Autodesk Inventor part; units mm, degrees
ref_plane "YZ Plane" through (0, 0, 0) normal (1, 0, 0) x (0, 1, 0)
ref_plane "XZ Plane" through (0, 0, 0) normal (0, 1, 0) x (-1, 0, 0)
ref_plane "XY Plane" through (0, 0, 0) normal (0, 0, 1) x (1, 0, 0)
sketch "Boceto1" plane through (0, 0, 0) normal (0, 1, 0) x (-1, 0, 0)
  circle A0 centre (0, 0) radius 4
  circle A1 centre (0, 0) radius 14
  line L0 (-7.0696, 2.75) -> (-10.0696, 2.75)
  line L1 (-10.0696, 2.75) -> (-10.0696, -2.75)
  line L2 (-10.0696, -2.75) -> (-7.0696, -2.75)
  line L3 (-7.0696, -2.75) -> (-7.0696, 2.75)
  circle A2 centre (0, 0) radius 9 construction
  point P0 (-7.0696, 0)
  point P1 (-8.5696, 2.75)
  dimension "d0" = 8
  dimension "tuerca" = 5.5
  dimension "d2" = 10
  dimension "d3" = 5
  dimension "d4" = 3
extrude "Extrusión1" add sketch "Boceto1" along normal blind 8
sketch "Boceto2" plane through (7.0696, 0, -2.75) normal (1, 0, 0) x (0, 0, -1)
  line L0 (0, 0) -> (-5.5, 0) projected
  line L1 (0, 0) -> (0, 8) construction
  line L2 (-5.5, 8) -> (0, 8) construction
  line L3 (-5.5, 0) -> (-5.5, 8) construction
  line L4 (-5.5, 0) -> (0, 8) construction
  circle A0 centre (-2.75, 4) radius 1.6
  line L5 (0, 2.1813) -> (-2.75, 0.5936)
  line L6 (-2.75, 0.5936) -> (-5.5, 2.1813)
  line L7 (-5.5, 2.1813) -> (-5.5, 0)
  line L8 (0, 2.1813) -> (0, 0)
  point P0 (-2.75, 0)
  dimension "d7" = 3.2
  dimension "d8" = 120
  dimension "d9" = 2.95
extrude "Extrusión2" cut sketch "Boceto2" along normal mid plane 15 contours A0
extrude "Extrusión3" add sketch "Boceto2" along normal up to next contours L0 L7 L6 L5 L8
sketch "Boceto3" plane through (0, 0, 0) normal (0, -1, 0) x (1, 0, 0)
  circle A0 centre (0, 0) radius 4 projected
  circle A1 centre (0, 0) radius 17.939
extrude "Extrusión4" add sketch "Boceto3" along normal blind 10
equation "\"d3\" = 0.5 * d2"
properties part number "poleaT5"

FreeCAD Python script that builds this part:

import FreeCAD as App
import Part
import Sketcher
Q = App.Units.Quantity

doc = App.newDocument("Part")
body = doc.addObject("PartDesign::Body", "Body")

sketch1 = body.newObject("Sketcher::SketchObject", "Sketch")
sketch1.AttachmentSupport = (doc.getObject("XZ_Plane"), [""])
sketch1.MapMode = "FlatFace"
sketch1.addGeometry([
    Part.Circle(App.Vector(0, 0, 0), App.Vector(0, 0, 1), 14),
    Part.LineSegment(App.Vector(10.1, 2.8, 0), App.Vector(7.1, 2.8, 0)),
    Part.LineSegment(App.Vector(7.1, 2.8, 0), App.Vector(7.1, -2.8, 0)),
    Part.LineSegment(App.Vector(7.1, -2.8, 0), App.Vector(10.1, -2.8, 0)),
    Part.LineSegment(App.Vector(10.1, -2.8, 0), App.Vector(10.1, 2.8, 0)),
    Part.Circle(App.Vector(0, 0, 0), App.Vector(0, 0, 1), 4),
], False)
sketch1.addConstraint([
    Sketcher.Constraint("Coincident", 1, 2, 2, 1),
    Sketcher.Constraint("Coincident", 2, 2, 3, 1),
    Sketcher.Constraint("Coincident", 3, 2, 4, 1),
    Sketcher.Constraint("Coincident", 4, 2, 1, 1),
    Sketcher.Constraint("Horizontal", 1),
    Sketcher.Constraint("Vertical", 2),
    Sketcher.Constraint("Horizontal", 3),
    Sketcher.Constraint("Vertical", 4),
    Sketcher.Constraint("Coincident", 0, 3, -1, 1),
    Sketcher.Constraint("Coincident", 5, 3, -1, 1),
    Sketcher.Constraint("Diameter", 5, 8.0),
    Sketcher.Constraint("DistanceX", 1, 2, 1, 1, 3.0),
    Sketcher.Constraint("Diameter", 0, 28.0),
    Sketcher.Constraint("DistanceY", 2, 2, 2, 1, 5.5),
    Sketcher.Constraint("DistanceY", -1, 1, 1, 2, 2.75),
    Sketcher.Constraint("DistanceX", -1, 1, 1, 2, 7.0696),
])
pad1 = body.newObject("PartDesign::Pad", "Pad")
pad1.Profile = sketch1
pad1.Length = 8
pad1.Reversed = True

sketch2 = body.newObject("Sketcher::SketchObject", "Sketch001")
sketch2.AttachmentSupport = (doc.getObject("YZ_Plane"), [""])
sketch2.MapMode = "FlatFace"
sketch2.AttachmentOffset = App.Placement(App.Vector(0, 0, 7.0696), App.Rotation())
sketch2.addGeometry(Part.Circle(App.Vector(4, 0, 0), App.Vector(0, 0, 1), 1.6), False)
sketch2.addConstraint([
    Sketcher.Constraint("PointOnObject", 0, 3, -1),
    Sketcher.Constraint("Diameter", 0, 3.2),
    Sketcher.Constraint("DistanceX", -1, 1, 0, 3, 4.0),
])
pocket1 = body.newObject("PartDesign::Pocket", "Pocket")
pocket1.Profile = sketch2
pocket1.Length = 15
pocket1.Midplane = True

sketch3 = body.newObject("Sketcher::SketchObject", "Sketch002")
sketch3.AttachmentSupport = (doc.getObject("YZ_Plane"), [""])
sketch3.MapMode = "FlatFace"
sketch3.AttachmentOffset = App.Placement(App.Vector(0, 0, 7.0696), App.Rotation())
sketch3.addGeometry([
    Part.LineSegment(App.Vector(0, 2.8, 0), App.Vector(0, -2.8, 0)),
    Part.LineSegment(App.Vector(0, -2.8, 0), App.Vector(2.2, -2.8, 0)),
    Part.LineSegment(App.Vector(2.2, -2.8, 0), App.Vector(0.6, 0, 0)),
    Part.LineSegment(App.Vector(0.6, 0, 0), App.Vector(2.2, 2.8, 0)),
    Part.LineSegment(App.Vector(2.2, 2.8, 0), App.Vector(0, 2.8, 0)),
], False)
sketch3.addConstraint([
    Sketcher.Constraint("Coincident", 0, 2, 1, 1),
    Sketcher.Constraint("Coincident", 1, 2, 2, 1),
    Sketcher.Constraint("Coincident", 2, 2, 3, 1),
    Sketcher.Constraint("Coincident", 3, 2, 4, 1),
    Sketcher.Constraint("Coincident", 4, 2, 0, 1),
    Sketcher.Constraint("Vertical", 0),
    Sketcher.Constraint("Horizontal", 1),
    Sketcher.Constraint("Horizontal", 4),
    Sketcher.Constraint("Symmetric", 0, 2, 4, 2, -1, 1),
    Sketcher.Constraint("PointOnObject", 2, 2, -1),
    Sketcher.Constraint("Vertical", 1, 2, 3, 2),
    Sketcher.Constraint("Angle", 2, Q("119.9998 deg")),
    Sketcher.Constraint("DistanceY", 0, 2, 0, 1, 5.5),
    Sketcher.Constraint("DistanceX", 1, 1, 1, 2, 2.1813),
])
pad2 = body.newObject("PartDesign::Pad", "Pad001")
pad2.Profile = sketch3
pad2.Type = "UpToFirst"

sketch4 = body.newObject("Sketcher::SketchObject", "Sketch003")
sketch4.AttachmentSupport = (doc.getObject("XZ_Plane"), [""])
sketch4.MapMode = "FlatFace"
sketch4.addGeometry([
    Part.Circle(App.Vector(0, 0, 0), App.Vector(0, 0, 1), 17.9),
    Part.Circle(App.Vector(0, 0, 0), App.Vector(0, 0, 1), 4),
], False)
sketch4.addConstraint([
    Sketcher.Constraint("Coincident", 0, 3, -1, 1),
    Sketcher.Constraint("Coincident", 1, 3, -1, 1),
    Sketcher.Constraint("Diameter", 1, 8.0),
    Sketcher.Constraint("Diameter", 0, 35.878),
])
pad3 = body.newObject("PartDesign::Pad", "Pad002")
pad3.Profile = sketch4
pad3.Length = 10

doc.recompute()
